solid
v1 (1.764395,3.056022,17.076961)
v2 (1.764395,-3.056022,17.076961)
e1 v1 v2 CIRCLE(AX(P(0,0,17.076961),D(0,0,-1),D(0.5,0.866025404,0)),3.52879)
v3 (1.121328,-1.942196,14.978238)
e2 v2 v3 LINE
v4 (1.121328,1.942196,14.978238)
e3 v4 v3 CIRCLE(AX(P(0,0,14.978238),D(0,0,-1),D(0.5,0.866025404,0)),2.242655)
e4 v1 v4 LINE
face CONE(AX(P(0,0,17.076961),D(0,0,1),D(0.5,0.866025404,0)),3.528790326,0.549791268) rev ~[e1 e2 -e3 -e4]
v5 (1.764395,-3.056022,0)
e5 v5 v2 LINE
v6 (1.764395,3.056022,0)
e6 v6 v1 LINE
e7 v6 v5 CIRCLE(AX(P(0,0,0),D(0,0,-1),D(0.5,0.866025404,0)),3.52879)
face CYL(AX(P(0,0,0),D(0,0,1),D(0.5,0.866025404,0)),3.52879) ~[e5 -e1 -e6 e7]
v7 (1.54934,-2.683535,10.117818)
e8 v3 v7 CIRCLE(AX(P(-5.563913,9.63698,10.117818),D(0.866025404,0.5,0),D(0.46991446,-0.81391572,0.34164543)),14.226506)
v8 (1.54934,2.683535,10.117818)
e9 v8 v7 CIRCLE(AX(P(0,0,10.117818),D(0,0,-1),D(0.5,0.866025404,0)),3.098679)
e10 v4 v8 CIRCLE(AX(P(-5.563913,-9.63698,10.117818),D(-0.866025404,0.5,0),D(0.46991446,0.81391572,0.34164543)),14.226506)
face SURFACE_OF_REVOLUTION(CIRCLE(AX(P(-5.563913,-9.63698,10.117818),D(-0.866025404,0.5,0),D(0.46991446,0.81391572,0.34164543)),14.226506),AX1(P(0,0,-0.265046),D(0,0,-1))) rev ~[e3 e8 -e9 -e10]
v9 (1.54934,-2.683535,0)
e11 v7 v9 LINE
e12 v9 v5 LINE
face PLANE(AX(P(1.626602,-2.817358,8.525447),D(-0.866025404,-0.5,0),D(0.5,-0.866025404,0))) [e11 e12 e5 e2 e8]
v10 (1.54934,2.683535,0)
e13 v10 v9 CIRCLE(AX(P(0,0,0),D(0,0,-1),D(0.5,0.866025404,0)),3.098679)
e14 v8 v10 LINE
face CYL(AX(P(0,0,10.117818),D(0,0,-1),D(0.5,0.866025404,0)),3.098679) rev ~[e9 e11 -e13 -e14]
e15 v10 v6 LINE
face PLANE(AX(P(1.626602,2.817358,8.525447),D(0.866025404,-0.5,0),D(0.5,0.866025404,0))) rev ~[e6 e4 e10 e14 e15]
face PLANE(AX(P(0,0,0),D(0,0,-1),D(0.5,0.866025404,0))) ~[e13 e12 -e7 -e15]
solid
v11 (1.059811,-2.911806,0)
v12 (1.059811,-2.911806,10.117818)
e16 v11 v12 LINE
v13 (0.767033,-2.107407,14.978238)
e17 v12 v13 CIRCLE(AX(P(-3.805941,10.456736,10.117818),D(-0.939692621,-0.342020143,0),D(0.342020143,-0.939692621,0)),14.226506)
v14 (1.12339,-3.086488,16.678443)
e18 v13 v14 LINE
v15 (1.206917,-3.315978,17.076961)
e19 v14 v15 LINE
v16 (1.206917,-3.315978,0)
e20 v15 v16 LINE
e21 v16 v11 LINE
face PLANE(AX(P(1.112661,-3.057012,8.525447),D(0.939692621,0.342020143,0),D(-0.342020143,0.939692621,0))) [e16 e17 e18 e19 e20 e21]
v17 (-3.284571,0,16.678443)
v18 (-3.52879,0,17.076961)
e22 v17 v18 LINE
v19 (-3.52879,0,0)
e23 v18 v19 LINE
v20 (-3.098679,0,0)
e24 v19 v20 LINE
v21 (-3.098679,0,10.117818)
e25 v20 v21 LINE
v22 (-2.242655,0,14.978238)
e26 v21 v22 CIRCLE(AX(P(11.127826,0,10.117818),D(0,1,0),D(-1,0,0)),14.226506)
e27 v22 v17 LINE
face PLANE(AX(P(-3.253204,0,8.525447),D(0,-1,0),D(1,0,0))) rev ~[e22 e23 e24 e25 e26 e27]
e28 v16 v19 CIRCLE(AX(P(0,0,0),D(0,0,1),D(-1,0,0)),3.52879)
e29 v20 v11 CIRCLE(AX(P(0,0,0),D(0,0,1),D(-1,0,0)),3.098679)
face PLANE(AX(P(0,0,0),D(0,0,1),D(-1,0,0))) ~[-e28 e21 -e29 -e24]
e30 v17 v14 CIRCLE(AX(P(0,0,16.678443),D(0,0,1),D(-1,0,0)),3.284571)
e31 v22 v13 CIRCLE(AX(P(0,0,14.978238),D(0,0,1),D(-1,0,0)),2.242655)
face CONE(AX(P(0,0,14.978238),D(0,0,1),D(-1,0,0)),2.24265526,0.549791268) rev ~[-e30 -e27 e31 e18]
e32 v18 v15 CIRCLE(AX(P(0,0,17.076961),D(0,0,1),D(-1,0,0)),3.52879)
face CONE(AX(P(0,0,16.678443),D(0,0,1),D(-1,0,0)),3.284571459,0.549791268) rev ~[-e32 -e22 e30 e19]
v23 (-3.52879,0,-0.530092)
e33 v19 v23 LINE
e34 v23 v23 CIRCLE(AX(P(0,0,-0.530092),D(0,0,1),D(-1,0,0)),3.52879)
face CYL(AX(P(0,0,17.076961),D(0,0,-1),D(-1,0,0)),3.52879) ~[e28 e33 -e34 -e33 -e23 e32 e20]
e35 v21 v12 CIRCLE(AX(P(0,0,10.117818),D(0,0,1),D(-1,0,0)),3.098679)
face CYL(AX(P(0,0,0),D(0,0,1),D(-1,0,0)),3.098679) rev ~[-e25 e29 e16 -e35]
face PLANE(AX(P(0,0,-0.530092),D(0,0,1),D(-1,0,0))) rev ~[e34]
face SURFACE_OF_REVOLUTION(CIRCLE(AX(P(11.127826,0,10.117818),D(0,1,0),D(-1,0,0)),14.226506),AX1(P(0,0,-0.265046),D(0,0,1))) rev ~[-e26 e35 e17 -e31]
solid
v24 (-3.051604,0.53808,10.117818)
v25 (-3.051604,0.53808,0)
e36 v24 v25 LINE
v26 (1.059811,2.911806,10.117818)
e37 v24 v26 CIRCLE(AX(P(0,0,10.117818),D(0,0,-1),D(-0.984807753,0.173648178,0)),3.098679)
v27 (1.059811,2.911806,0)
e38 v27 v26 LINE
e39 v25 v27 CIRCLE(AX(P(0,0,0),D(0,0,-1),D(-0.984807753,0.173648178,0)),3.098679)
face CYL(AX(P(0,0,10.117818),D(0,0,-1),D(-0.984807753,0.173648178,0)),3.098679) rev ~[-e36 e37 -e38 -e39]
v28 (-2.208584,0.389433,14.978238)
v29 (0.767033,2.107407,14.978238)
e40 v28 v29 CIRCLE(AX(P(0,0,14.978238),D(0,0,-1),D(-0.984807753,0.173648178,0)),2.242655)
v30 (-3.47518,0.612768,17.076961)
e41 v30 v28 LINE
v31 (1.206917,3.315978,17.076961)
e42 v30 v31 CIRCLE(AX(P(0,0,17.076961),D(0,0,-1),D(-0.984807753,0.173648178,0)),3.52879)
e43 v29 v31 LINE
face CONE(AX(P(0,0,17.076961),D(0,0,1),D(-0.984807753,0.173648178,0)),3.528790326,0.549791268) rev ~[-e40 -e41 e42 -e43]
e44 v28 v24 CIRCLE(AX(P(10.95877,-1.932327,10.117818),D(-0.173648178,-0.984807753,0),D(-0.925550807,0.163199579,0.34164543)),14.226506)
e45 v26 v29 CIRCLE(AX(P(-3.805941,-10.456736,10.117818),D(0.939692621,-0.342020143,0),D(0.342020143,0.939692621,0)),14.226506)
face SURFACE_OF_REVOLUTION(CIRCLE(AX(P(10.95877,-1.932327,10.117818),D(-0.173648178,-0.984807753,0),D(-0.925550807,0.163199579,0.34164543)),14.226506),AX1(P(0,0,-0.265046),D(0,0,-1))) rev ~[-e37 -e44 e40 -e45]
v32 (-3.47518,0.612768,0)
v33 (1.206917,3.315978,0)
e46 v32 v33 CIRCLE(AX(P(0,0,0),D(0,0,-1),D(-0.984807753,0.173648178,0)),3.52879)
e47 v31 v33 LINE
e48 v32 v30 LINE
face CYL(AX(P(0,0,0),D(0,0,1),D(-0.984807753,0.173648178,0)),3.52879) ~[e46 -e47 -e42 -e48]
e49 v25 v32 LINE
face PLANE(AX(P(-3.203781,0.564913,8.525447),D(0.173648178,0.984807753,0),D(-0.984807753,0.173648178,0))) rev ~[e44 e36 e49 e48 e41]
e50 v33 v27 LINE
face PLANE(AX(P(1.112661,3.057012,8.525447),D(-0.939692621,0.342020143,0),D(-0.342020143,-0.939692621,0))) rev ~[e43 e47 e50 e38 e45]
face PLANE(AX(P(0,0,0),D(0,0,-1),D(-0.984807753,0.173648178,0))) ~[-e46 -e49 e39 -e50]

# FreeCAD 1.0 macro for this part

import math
import FreeCAD as App
import Part
import Sketcher
from FreeCAD import Vector

doc = App.newDocument("Part")
body = doc.addObject("PartDesign::Body", "Body")

sketch1 = doc.addObject("Sketcher::SketchObject", "Sketch")
body.addObject(sketch1)
sketch1.AttachmentSupport = (doc.XZ_Plane, [""])
sketch1.MapMode = "FlatFace"
sketch1.addGeometry([
    Part.LineSegment(Vector(-3.53, 17.08, 0), Vector(-3.53, 0, 0)),
    Part.LineSegment(Vector(-3.53, 0, 0), Vector(-3.1, 0, 0)),
    Part.LineSegment(Vector(-3.1, 0, 0), Vector(-3.1, 10.12, 0)),
    Part.ArcOfCircle(Part.Circle(Vector(11.13, 10.12, 0), Vector(0, 0, 1), 14.23), math.radians(160.02), math.radians(180)),
    Part.LineSegment(Vector(-2.24, 14.98, 0), Vector(-3.28, 16.68, 0)),
    Part.LineSegment(Vector(-3.28, 16.68, 0), Vector(-3.53, 17.08, 0)),
], False)
sketch1.addConstraint([
    Sketcher.Constraint("Coincident", 0, 2, 1, 1),
    Sketcher.Constraint("Coincident", 1, 2, 2, 1),
    Sketcher.Constraint("Tangent", 2, 2, 3, 2),
    Sketcher.Constraint("Coincident", 3, 1, 4, 1),
    Sketcher.Constraint("Coincident", 4, 2, 5, 1),
    Sketcher.Constraint("Coincident", 5, 2, 0, 1),
    Sketcher.Constraint("Vertical", 0),
    Sketcher.Constraint("Horizontal", 1),
    Sketcher.Constraint("Vertical", 2),
    Sketcher.Constraint("PointOnObject", 0, 2, -1),
    Sketcher.Constraint("Parallel", 4, 5),
    Sketcher.Constraint("Radius", 3, 14.226506),
    Sketcher.Constraint("DistanceX", 1, 1, 1, 2, 0.430111),
    Sketcher.Constraint("DistanceY", 0, 2, 0, 1, 17.076961),
    Sketcher.Constraint("DistanceY", 2, 1, 2, 2, 10.117818),
    Sketcher.Constraint("DistanceX", 0, 2, -1, 1, 3.52879),
    Sketcher.Constraint("DistanceY", -1, 1, 3, 1, 14.978238),
    Sketcher.Constraint("DistanceX", 4, 2, -1, 1, 3.284571),
])
revolution = doc.addObject("PartDesign::Revolution", "Revolution")
body.addObject(revolution)
revolution.Profile = sketch1
revolution.ReferenceAxis = (sketch1, ["V_Axis"])
revolution.Angle = 10
revolution.Reversed = True

sketch2 = doc.addObject("Sketcher::SketchObject", "Sketch001")
body.addObject(sketch2)
sketch2.Placement = App.Placement(Vector(-3.163124, 0.557744, 9.634538), App.Rotation(Vector(0.984807753, -0.173648178, 0), Vector(0, 0, 1), Vector(-0.173648178, -0.984807753, 0), "ZXY"))
sketch2.addGeometry([
    Part.LineSegment(Vector(0.97, 5.34, 0), Vector(-0.32, 7.44, 0)),
    Part.LineSegment(Vector(-0.32, 7.44, 0), Vector(-0.32, -9.63, 0)),
    Part.LineSegment(Vector(-0.32, -9.63, 0), Vector(0.11, -9.63, 0)),
    Part.LineSegment(Vector(0.11, -9.63, 0), Vector(0.11, 0.48, 0)),
    Part.ArcOfCircle(Part.Circle(Vector(14.34, 0.48, 0), Vector(0, 0, 1), 14.23), math.radians(160.02), math.radians(180)),
], False)
sketch2.addGeometry(Part.LineSegment(Vector(3.21, -9.63, 0), Vector(3.21, 7.44, 0)), True)
sketch2.addConstraint([
    Sketcher.Constraint("Coincident", 0, 2, 1, 1),
    Sketcher.Constraint("Coincident", 1, 2, 2, 1),
    Sketcher.Constraint("Coincident", 2, 2, 3, 1),
    Sketcher.Constraint("Tangent", 3, 2, 4, 2),
    Sketcher.Constraint("Coincident", 4, 1, 0, 1),
    Sketcher.Constraint("Vertical", 1),
    Sketcher.Constraint("Horizontal", 2),
    Sketcher.Constraint("Vertical", 3),
    Sketcher.Constraint("Vertical", 5),
    Sketcher.Constraint("Horizontal", 2, 2, 5, 1),
    Sketcher.Constraint("Horizontal", 0, 2, 5, 2),
    Sketcher.Constraint("Radius", 4, 14.226506),
    Sketcher.Constraint("DistanceX", 2, 1, 2, 2, 0.430111),
    Sketcher.Constraint("DistanceY", 1, 2, 1, 1, 17.076961),
    Sketcher.Constraint("DistanceY", -1, 1, 4, 1, 5.343701),
    Sketcher.Constraint("Distance", 0, 2.461459),
    Sketcher.Constraint("DistanceY", 3, 1, 3, 2, 10.117818),
    Sketcher.Constraint("DistanceX", 0, 2, -1, 1, 0.31687),
    Sketcher.Constraint("DistanceX", -1, 1, 5, 1, 3.21192),
])
groove = doc.addObject("PartDesign::Groove", "Groove")
body.addObject(groove)
groove.Profile = sketch2
groove.ReferenceAxis = (sketch2, ["Axis0"])
groove.Angle = 10
body2 = doc.addObject("PartDesign::Body", "Body001")

sketch3 = doc.addObject("Sketcher::SketchObject", "Sketch002")
body2.addObject(sketch3)
sketch3.Placement = App.Placement(Vector(-3.163124, 0.557744, 9.634538), App.Rotation(Vector(-0.984807753, 0.173648178, 0), Vector(0, 0, 1), Vector(0.173648178, 0.984807753, 0), "ZXY"))
sketch3.addGeometry([
    Part.LineSegment(Vector(0.32, 7.44, 0), Vector(-0.97, 5.34, 0)),
    Part.ArcOfCircle(Part.Circle(Vector(-14.34, 0.48, 0), Vector(0, 0, 1), 14.23), math.radians(0), math.radians(19.98)),
    Part.LineSegment(Vector(-0.11, 0.48, 0), Vector(-0.11, -9.63, 0)),
    Part.LineSegment(Vector(-0.11, -9.63, 0), Vector(0.32, -9.63, 0)),
    Part.LineSegment(Vector(0.32, -9.63, 0), Vector(0.32, 7.44, 0)),
], False)
sketch3.addGeometry(Part.LineSegment(Vector(-3.21, 7.44, 0), Vector(-3.21, -9.63, 0)), True)
sketch3.addConstraint([
    Sketcher.Constraint("Coincident", 0, 2, 1, 2),
    Sketcher.Constraint("Tangent", 1, 1, 2, 1),
    Sketcher.Constraint("Coincident", 2, 2, 3, 1),
    Sketcher.Constraint("Coincident", 3, 2, 4, 1),
    Sketcher.Constraint("Coincident", 4, 2, 0, 1),
    Sketcher.Constraint("Vertical", 2),
    Sketcher.Constraint("Horizontal", 3),
    Sketcher.Constraint("Vertical", 4),
    Sketcher.Constraint("Vertical", 5),
    Sketcher.Constraint("Horizontal", 4, 2, 5, 1),
    Sketcher.Constraint("Horizontal", 3, 2, 5, 2),
    Sketcher.Constraint("Radius", 1, 14.226506),
    Sketcher.Constraint("DistanceX", 3, 1, 3, 2, 0.430111),
    Sketcher.Constraint("DistanceY", 4, 1, 4, 2, 17.076961),
    Sketcher.Constraint("DistanceY", -1, 1, 0, 2, 5.343701),
    Sketcher.Constraint("Distance", 0, 2.461459),
    Sketcher.Constraint("DistanceY", 2, 2, 2, 1, 10.117818),
    Sketcher.Constraint("DistanceX", 1, 1, -1, 1, 0.11324),
    Sketcher.Constraint("DistanceX", 5, 1, -1, 1, 3.21192),
])
revolution2 = doc.addObject("PartDesign::Revolution", "Revolution001")
body2.addObject(revolution2)
revolution2.Profile = sketch3
revolution2.ReferenceAxis = (sketch3, ["Axis0"])
revolution2.Angle = 110
body3 = doc.addObject("PartDesign::Body", "Body002")

sketch4 = doc.addObject("Sketcher::SketchObject", "Sketch003")
body3.addObject(sketch4)
sketch4.Placement = App.Placement(Vector(1.60596, 2.781604, 9.634538), App.Rotation(Vector(0.5, 0.866025404, 0), Vector(0, 0, 1), Vector(0.866025404, -0.5, 0), "ZXY"))
sketch4.addGeometry([
    Part.LineSegment(Vector(0.32, 7.44, 0), Vector(-0.97, 5.34, 0)),
    Part.ArcOfCircle(Part.Circle(Vector(-14.34, 0.48, 0), Vector(0, 0, 1), 14.23), math.radians(0), math.radians(19.98)),
    Part.LineSegment(Vector(-0.11, 0.48, 0), Vector(-0.11, -9.63, 0)),
    Part.LineSegment(Vector(-0.11, -9.63, 0), Vector(0.32, -9.63, 0)),
    Part.LineSegment(Vector(0.32, -9.63, 0), Vector(0.32, 7.44, 0)),
], False)
sketch4.addGeometry(Part.LineSegment(Vector(-3.21, -9.63, 0), Vector(-3.21, 7.44, 0)), True)
sketch4.addConstraint([
    Sketcher.Constraint("Coincident", 0, 2, 1, 2),
    Sketcher.Constraint("Tangent", 1, 1, 2, 1),
    Sketcher.Constraint("Coincident", 2, 2, 3, 1),
    Sketcher.Constraint("Coincident", 3, 2, 4, 1),
    Sketcher.Constraint("Coincident", 4, 2, 0, 1),
    Sketcher.Constraint("Vertical", 2),
    Sketcher.Constraint("Horizontal", 3),
    Sketcher.Constraint("Vertical", 4),
    Sketcher.Constraint("Vertical", 5),
    Sketcher.Constraint("Horizontal", 3, 2, 5, 1),
    Sketcher.Constraint("Horizontal", 4, 2, 5, 2),
    Sketcher.Constraint("Radius", 1, 14.226506),
    Sketcher.Constraint("DistanceX", 3, 1, 3, 2, 0.430111),
    Sketcher.Constraint("DistanceY", 4, 1, 4, 2, 17.076961),
    Sketcher.Constraint("DistanceY", -1, 1, 0, 2, 5.343701),
    Sketcher.Constraint("Distance", 0, 2.461459),
    Sketcher.Constraint("DistanceY", 2, 2, 2, 1, 10.117818),
    Sketcher.Constraint("DistanceX", 1, 1, -1, 1, 0.11324),
    Sketcher.Constraint("DistanceX", 5, 1, -1, 1, 3.21192),
])
revolution3 = doc.addObject("PartDesign::Revolution", "Revolution002")
body3.addObject(revolution3)
revolution3.Profile = sketch4
revolution3.ReferenceAxis = (sketch4, ["Axis0"])
revolution3.Angle = 10
body4 = doc.addObject("PartDesign::Body", "Body003")

sketch5 = doc.addObject("Sketcher::SketchObject", "Sketch004")
body4.addObject(sketch5)
sketch5.Placement = App.Placement(Vector(1.60596, 2.781604, 9.634538), App.Rotation(Vector(0.5, 0.866025404, 0), Vector(0, 0, 1), Vector(0.866025404, -0.5, 0), "ZXY"))
sketch5.addGeometry([
    Part.LineSegment(Vector(0.32, 7.44, 0), Vector(-0.97, 5.34, 0)),
    Part.ArcOfCircle(Part.Circle(Vector(-14.34, 0.48, 0), Vector(0, 0, 1), 14.23), math.radians(0), math.radians(19.98)),
    Part.LineSegment(Vector(-0.11, 0.48, 0), Vector(-0.11, -9.63, 0)),
    Part.LineSegment(Vector(-0.11, -9.63, 0), Vector(0.32, -9.63, 0)),
    Part.LineSegment(Vector(0.32, -9.63, 0), Vector(0.32, 7.44, 0)),
], False)
sketch5.addGeometry(Part.LineSegment(Vector(-3.21, 7.44, 0), Vector(-3.21, -9.63, 0)), True)
sketch5.addConstraint([
    Sketcher.Constraint("Coincident", 0, 2, 1, 2),
    Sketcher.Constraint("Tangent", 1, 1, 2, 1),
    Sketcher.Constraint("Coincident", 2, 2, 3, 1),
    Sketcher.Constraint("Coincident", 3, 2, 4, 1),
    Sketcher.Constraint("Coincident", 4, 2, 0, 1),
    Sketcher.Constraint("Vertical", 2),
    Sketcher.Constraint("Horizontal", 3),
    Sketcher.Constraint("Vertical", 4),
    Sketcher.Constraint("Vertical", 5),
    Sketcher.Constraint("Horizontal", 4, 2, 5, 1),
    Sketcher.Constraint("Horizontal", 3, 2, 5, 2),
    Sketcher.Constraint("Radius", 1, 14.226506),
    Sketcher.Constraint("DistanceX", 3, 1, 3, 2, 0.430111),
    Sketcher.Constraint("DistanceY", 4, 1, 4, 2, 17.076961),
    Sketcher.Constraint("DistanceY", -1, 1, 0, 2, 5.343701),
    Sketcher.Constraint("Distance", 0, 2.461459),
    Sketcher.Constraint("DistanceY", 2, 2, 2, 1, 10.117818),
    Sketcher.Constraint("DistanceX", 1, 1, -1, 1, 0.11324),
    Sketcher.Constraint("DistanceX", 5, 1, -1, 1, 3.21192),
])
revolution4 = doc.addObject("PartDesign::Revolution", "Revolution003")
body4.addObject(revolution4)
revolution4.Profile = sketch5
revolution4.ReferenceAxis = (sketch5, ["Axis0"])
revolution4.Angle = 120
body5 = doc.addObject("PartDesign::Body", "Body004")

sketch6 = doc.addObject("Sketcher::SketchObject", "Sketch005")
body5.addObject(sketch6)
sketch6.Placement = App.Placement(Vector(1.60596, 2.781604, 9.634538), App.Rotation(Vector(-0.5, -0.866025404, 0), Vector(0, 0, 1), Vector(-0.866025404, 0.5, 0), "ZXY"))
sketch6.addGeometry([
    Part.LineSegment(Vector(0.97, 5.34, 0), Vector(-0.32, 7.44, 0)),
    Part.LineSegment(Vector(-0.32, 7.44, 0), Vector(-0.32, -9.63, 0)),
    Part.LineSegment(Vector(-0.32, -9.63, 0), Vector(0.11, -9.63, 0)),
    Part.LineSegment(Vector(0.11, -9.63, 0), Vector(0.11, 0.48, 0)),
    Part.ArcOfCircle(Part.Circle(Vector(14.34, 0.48, 0), Vector(0, 0, 1), 14.23), math.radians(160.02), math.radians(180)),
], False)
sketch6.addGeometry(Part.LineSegment(Vector(3.21, -9.63, 0), Vector(3.21, 7.44, 0)), True)
sketch6.addConstraint([
    Sketcher.Constraint("Coincident", 0, 2, 1, 1),
    Sketcher.Constraint("Coincident", 1, 2, 2, 1),
    Sketcher.Constraint("Coincident", 2, 2, 3, 1),
    Sketcher.Constraint("Tangent", 3, 2, 4, 2),
    Sketcher.Constraint("Coincident", 4, 1, 0, 1),
    Sketcher.Constraint("Vertical", 1),
    Sketcher.Constraint("Horizontal", 2),
    Sketcher.Constraint("Vertical", 3),
    Sketcher.Constraint("Vertical", 5),
    Sketcher.Constraint("Horizontal", 2, 2, 5, 1),
    Sketcher.Constraint("Horizontal", 0, 2, 5, 2),
    Sketcher.Constraint("Radius", 4, 14.226506),
    Sketcher.Constraint("DistanceX", 2, 1, 2, 2, 0.430111),
    Sketcher.Constraint("DistanceY", 1, 2, 1, 1, 17.076961),
    Sketcher.Constraint("DistanceY", -1, 1, 4, 1, 5.343701),
    Sketcher.Constraint("Distance", 0, 2.461459),
    Sketcher.Constraint("DistanceY", 3, 1, 3, 2, 10.117818),
    Sketcher.Constraint("DistanceX", 0, 2, -1, 1, 0.31687),
    Sketcher.Constraint("DistanceX", -1, 1, 5, 1, 3.21192),
])
revolution5 = doc.addObject("PartDesign::Revolution", "Revolution004")
body5.addObject(revolution5)
revolution5.Profile = sketch6
revolution5.ReferenceAxis = (sketch6, ["Axis0"])
revolution5.Angle = 10
doc.recompute()

body6 = doc.addObject("PartDesign::Body", "Body005")
body6.BaseFeature = body5
boolean = doc.addObject("PartDesign::Boolean", "Boolean")
body2.addObject(boolean)
boolean.Type = "Cut"
boolean.addObjects([body6])
doc.recompute()

boolean2 = doc.addObject("PartDesign::Boolean", "Boolean001")
body3.addObject(boolean2)
boolean2.Type = "Cut"
boolean2.addObjects([body5])
body7 = doc.addObject("PartDesign::Body", "Body006")

sketch7 = doc.addObject("Sketcher::SketchObject", "Sketch006")
body7.addObject(sketch7)
sketch7.AttachmentSupport = (doc.getObject("XZ_Plane006"), [""])
sketch7.MapMode = "FlatFace"
sketch7.addGeometry([
    Part.LineSegment(Vector(-3.5, -0.5, 0), Vector(0, -0.5, 0)),
    Part.LineSegment(Vector(0, -0.5, 0), Vector(0, 0, 0)),
    Part.LineSegment(Vector(0, 0, 0), Vector(-3.5, 0, 0)),
    Part.LineSegment(Vector(-3.5, 0, 0), Vector(-3.5, -0.5, 0)),
], False)
sketch7.addConstraint([
    Sketcher.Constraint("Coincident", 0, 2, 1, 1),
    Sketcher.Constraint("Coincident", 1, 2, 2, 1),
    Sketcher.Constraint("Coincident", 2, 2, 3, 1),
    Sketcher.Constraint("Coincident", 3, 2, 0, 1),
    Sketcher.Constraint("Horizontal", 0),
    Sketcher.Constraint("Vertical", 1),
    Sketcher.Constraint("Horizontal", 2),
    Sketcher.Constraint("Vertical", 3),
    Sketcher.Constraint("Coincident", 1, 2, -1, 1),
    Sketcher.Constraint("DistanceX", 0, 1, 0, 2, 3.52879),
    Sketcher.Constraint("DistanceY", 1, 1, 1, 2, 0.530092),
])
revolution6 = doc.addObject("PartDesign::Revolution", "Revolution005")
body7.addObject(revolution6)
revolution6.Profile = sketch7
revolution6.ReferenceAxis = (sketch7, ["V_Axis"])
revolution6.Angle = 360

sketch8 = doc.addObject("Sketcher::SketchObject", "Sketch007")
body7.addObject(sketch8)
sketch8.AttachmentSupport = (doc.getObject("XZ_Plane006"), [""])
sketch8.MapMode = "FlatFace"
sketch8.addGeometry([
    Part.LineSegment(Vector(-3.53, 17.08, 0), Vector(-3.53, 0, 0)),
    Part.LineSegment(Vector(-3.53, 0, 0), Vector(-3.1, 0, 0)),
    Part.LineSegment(Vector(-3.1, 0, 0), Vector(-3.1, 10.12, 0)),
    Part.ArcOfCircle(Part.Circle(Vector(11.13, 10.12, 0), Vector(0, 0, 1), 14.23), math.radians(160.02), math.radians(180)),
    Part.LineSegment(Vector(-2.24, 14.98, 0), Vector(-3.28, 16.68, 0)),
    Part.LineSegment(Vector(-3.28, 16.68, 0), Vector(-3.53, 17.08, 0)),
], False)
sketch8.addConstraint([
    Sketcher.Constraint("Coincident", 0, 2, 1, 1),
    Sketcher.Constraint("Coincident", 1, 2, 2, 1),
    Sketcher.Constraint("Tangent", 2, 2, 3, 2),
    Sketcher.Constraint("Coincident", 3, 1, 4, 1),
    Sketcher.Constraint("Coincident", 4, 2, 5, 1),
    Sketcher.Constraint("Coincident", 5, 2, 0, 1),
    Sketcher.Constraint("Vertical", 0),
    Sketcher.Constraint("Horizontal", 1),
    Sketcher.Constraint("Vertical", 2),
    Sketcher.Constraint("PointOnObject", 0, 2, -1),
    Sketcher.Constraint("Parallel", 4, 5),
    Sketcher.Constraint("Radius", 3, 14.226506),
    Sketcher.Constraint("DistanceX", 1, 1, 1, 2, 0.430111),
    Sketcher.Constraint("DistanceY", 0, 2, 0, 1, 17.076961),
    Sketcher.Constraint("DistanceY", 2, 1, 2, 2, 10.117818),
    Sketcher.Constraint("DistanceX", 0, 2, -1, 1, 3.52879),
    Sketcher.Constraint("DistanceY", -1, 1, 3, 1, 14.978238),
    Sketcher.Constraint("DistanceX", 4, 2, -1, 1, 3.284571),
])
revolution7 = doc.addObject("PartDesign::Revolution", "Revolution006")
body7.addObject(revolution7)
revolution7.Profile = sketch8
revolution7.ReferenceAxis = (sketch8, ["V_Axis"])
revolution7.Angle = 110

doc.recompute()
